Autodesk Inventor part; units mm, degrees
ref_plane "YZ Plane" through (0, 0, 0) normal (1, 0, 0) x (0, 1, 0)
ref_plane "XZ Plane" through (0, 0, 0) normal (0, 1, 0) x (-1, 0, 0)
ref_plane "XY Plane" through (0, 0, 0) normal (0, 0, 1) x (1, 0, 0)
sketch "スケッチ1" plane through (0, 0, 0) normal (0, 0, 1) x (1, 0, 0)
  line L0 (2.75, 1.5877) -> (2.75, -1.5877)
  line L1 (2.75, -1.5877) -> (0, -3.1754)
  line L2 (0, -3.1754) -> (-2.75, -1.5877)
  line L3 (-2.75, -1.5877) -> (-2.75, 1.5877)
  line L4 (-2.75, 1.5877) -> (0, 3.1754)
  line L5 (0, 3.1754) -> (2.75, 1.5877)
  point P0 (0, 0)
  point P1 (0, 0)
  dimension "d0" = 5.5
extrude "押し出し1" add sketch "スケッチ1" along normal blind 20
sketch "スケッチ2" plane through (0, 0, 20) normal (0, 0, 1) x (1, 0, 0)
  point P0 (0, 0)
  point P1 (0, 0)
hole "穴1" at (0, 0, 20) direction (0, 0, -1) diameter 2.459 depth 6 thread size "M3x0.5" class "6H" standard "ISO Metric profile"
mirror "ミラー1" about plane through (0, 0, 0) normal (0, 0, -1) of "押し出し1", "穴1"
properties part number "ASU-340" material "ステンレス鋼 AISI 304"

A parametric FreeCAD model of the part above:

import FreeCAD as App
import Part
import Sketcher
Q = App.Units.Quantity

doc = App.newDocument("Part")
body = doc.addObject("PartDesign::Body", "Body")

# Sketch on XY plane
sketch1 = doc.addObject("Sketcher::SketchObject", "Sketch")
body.addObject(sketch1)
sketch1.AttachmentSupport = (doc.XY_Plane, [""])
sketch1.MapMode = "FlatFace"
sketch1.addGeometry(Part.LineSegment(App.Vector(2.8, -1.6, 0), App.Vector(2.8, 1.6, 0)), False)
sketch1.addGeometry(Part.LineSegment(App.Vector(2.8, 1.6, 0), App.Vector(0, 3.2, 0)), False)
sketch1.addGeometry(Part.LineSegment(App.Vector(0, 3.2, 0), App.Vector(-2.8, 1.6, 0)), False)
sketch1.addGeometry(Part.LineSegment(App.Vector(-2.8, 1.6, 0), App.Vector(-2.8, -1.6, 0)), False)
sketch1.addGeometry(Part.LineSegment(App.Vector(-2.8, -1.6, 0), App.Vector(0, -3.2, 0)), False)
sketch1.addGeometry(Part.LineSegment(App.Vector(0, -3.2, 0), App.Vector(2.8, -1.6, 0)), False)
sketch1.addConstraint(Sketcher.Constraint("Coincident", 0, 2, 1, 1))
sketch1.addConstraint(Sketcher.Constraint("Coincident", 1, 2, 2, 1))
sketch1.addConstraint(Sketcher.Constraint("Coincident", 2, 2, 3, 1))
sketch1.addConstraint(Sketcher.Constraint("Coincident", 3, 2, 4, 1))
sketch1.addConstraint(Sketcher.Constraint("Coincident", 4, 2, 5, 1))
sketch1.addConstraint(Sketcher.Constraint("Coincident", 5, 2, 0, 1))
sketch1.addConstraint(Sketcher.Constraint("Vertical", 0))
sketch1.addConstraint(Sketcher.Constraint("Vertical", 3))
sketch1.addConstraint(Sketcher.Constraint("Symmetric", 0, 2, 3, 2, -1, 1))
sketch1.addConstraint(Sketcher.Constraint("Symmetric", 1, 2, 4, 2, -1, 1))
sketch1.addConstraint(Sketcher.Constraint("PointOnObject", 1, 2, -2))
sketch1.addConstraint(Sketcher.Constraint("Parallel", 2, 5))
sketch1.addConstraint(Sketcher.Constraint("Horizontal", 0, 2, 2, 2))
sketch1.addConstraint(Sketcher.Constraint("DistanceX", 2, 2, 0, 2, 5.5))
sketch1.addConstraint(Sketcher.Constraint("Angle", 1, Q("150.0002 deg")))
sketch1.addConstraint(Sketcher.Constraint("DistanceY", 0, 1, 0, 2, 3.1754))
pad1 = doc.addObject("PartDesign::Pad", "Pad")
body.addObject(pad1)
pad1.Profile = sketch1
pad1.Length = 20

# Sketch on XY plane
sketch2 = doc.addObject("Sketcher::SketchObject", "Sketch001")
body.addObject(sketch2)
sketch2.AttachmentSupport = (doc.XY_Plane, [""])
sketch2.MapMode = "FlatFace"
sketch2.AttachmentOffset = App.Placement(App.Vector(0, 0, 20), App.Rotation())
sketch2.addGeometry(Part.Circle(App.Vector(0, 0, 0), App.Vector(0, 0, 1), 1.2), False)
sketch2.addConstraint(Sketcher.Constraint("Coincident", 0, 3, -1, 1))
sketch2.addConstraint(Sketcher.Constraint("Diameter", 0, 2.459))
doc.recompute()
hole = doc.addObject("PartDesign::Hole", "Hole")
body.addObject(hole)
hole.Profile = sketch2
hole.ThreadType = "None"
hole.Diameter = 2.459
hole.DepthType = "Dimension"
hole.Depth = 6
hole.DrillPoint = "Flat"
doc.recompute()

mirrored = doc.addObject("PartDesign::Mirrored", "Mirrored")
body.addObject(mirrored)
mirrored.Originals = [pad1, hole]
mirrored.MirrorPlane = (doc.XY_Plane, [""])
body.Tip = mirrored

doc.recompute()
